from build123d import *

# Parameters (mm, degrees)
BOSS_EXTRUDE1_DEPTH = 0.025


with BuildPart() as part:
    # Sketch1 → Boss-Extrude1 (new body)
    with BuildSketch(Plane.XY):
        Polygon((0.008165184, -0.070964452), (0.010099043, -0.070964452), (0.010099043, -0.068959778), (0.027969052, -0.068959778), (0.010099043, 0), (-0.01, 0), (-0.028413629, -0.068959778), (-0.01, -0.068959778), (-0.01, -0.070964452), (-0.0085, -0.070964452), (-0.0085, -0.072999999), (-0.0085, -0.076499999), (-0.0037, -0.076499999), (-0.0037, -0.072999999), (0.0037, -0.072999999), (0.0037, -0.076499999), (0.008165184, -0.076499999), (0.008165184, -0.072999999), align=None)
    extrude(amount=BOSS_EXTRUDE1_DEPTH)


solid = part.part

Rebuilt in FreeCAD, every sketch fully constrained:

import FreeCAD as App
import Part
import Sketcher
Q = App.Units.Quantity


def add_polygon(sketch, points):
    """Adds a closed chain of lines whose ends are joined by coincident constraints."""
    first, n = sketch.GeometryCount, len(points)
    for a, b in zip(points, points[1:] + points[:1]):
        sketch.addGeometry(Part.LineSegment(App.Vector(*a, 0), App.Vector(*b, 0)), False)
    for i in range(n):
        sketch.addConstraint(Sketcher.Constraint("Coincident", first + i, 2, first + (i + 1) % n, 1))

doc = App.newDocument("Part")
params = doc.addObject("Spreadsheet::Sheet", "Params")
for row, (alias, value) in enumerate([
    ("pad1_length", "0.025 mm"),
], start=1):
    params.set(f"A{row}", alias)
    params.set(f"B{row}", "=" + value)
    params.setAlias(f"B{row}", alias)

body = doc.addObject("PartDesign::Body", "Body")

# Sketch on XY plane
sketch1 = body.newObject("Sketcher::SketchObject", "Sketch")
sketch1.AttachmentSupport = (doc.getObject("XY_Plane"), [""])
sketch1.MapMode = "FlatFace"
add_polygon(sketch1, [(0.0082, -0.071), (0.0101, -0.071), (0.0101, -0.069), (0.028, -0.069), (0.0101, 0), (-0.01, 0), (-0.0284, -0.069), (-0.01, -0.069), (-0.01, -0.071), (-0.0085, -0.071), (-0.0085, -0.0765), (-0.0037, -0.0765), (-0.0037, -0.073), (0.0037, -0.073), (0.0037, -0.0765), (0.0082, -0.0765)])  # lines 0-15
sketch1.addConstraint([
    Sketcher.Constraint("Horizontal", 0),
    Sketcher.Constraint("Vertical", 1),
    Sketcher.Constraint("Horizontal", 2),
    Sketcher.Constraint("Horizontal", 4),
    Sketcher.Constraint("Horizontal", 6),
    Sketcher.Constraint("Vertical", 7),
    Sketcher.Constraint("Horizontal", 8),
    Sketcher.Constraint("Vertical", 9),
    Sketcher.Constraint("Horizontal", 10),
    Sketcher.Constraint("Vertical", 11),
    Sketcher.Constraint("Horizontal", 12),
    Sketcher.Constraint("Vertical", 13),
    Sketcher.Constraint("Horizontal", 14),
    Sketcher.Constraint("Vertical", 15),
    Sketcher.Constraint("Symmetric", 10, 2, 13, 2, -2),
    Sketcher.Constraint("PointOnObject", 3, 2, -1),
    Sketcher.Constraint("Horizontal", 2, 2, 5, 2),
    Sketcher.Constraint("Horizontal", 0, 2, 7, 2),
    Sketcher.Constraint("Vertical", 1, 2, 3, 2),
    Sketcher.Constraint("Vertical", 4, 2, 6, 2),
    Sketcher.Constraint("DistanceX", 4, 2, -1, 1, Q("0.01 mm")),
    Sketcher.Constraint("DistanceX", 4, 2, 4, 1, Q("0.020099 mm")),
    Sketcher.Constraint("DistanceX", 8, 1, 8, 2, Q("0.0015 mm")),
    Sketcher.Constraint("DistanceX", 10, 1, 10, 2, Q("0.0048 mm")),
    Sketcher.Constraint("DistanceY", 11, 1, 11, 2, Q("0.0035 mm")),
    Sketcher.Constraint("DistanceY", 11, 2, -1, 1, Q("0.073 mm")),
    Sketcher.Constraint("DistanceX", 2, 1, 2, 2, Q("0.01787 mm")),
    Sketcher.Constraint("DistanceX", 0, 1, 0, 2, Q("0.001934 mm")),
    Sketcher.Constraint("DistanceX", 6, 1, 6, 2, Q("0.018414 mm")),
    Sketcher.Constraint("DistanceY", 1, 1, 1, 2, Q("0.002005 mm")),
    Sketcher.Constraint("DistanceY", 9, 2, 9, 1, Q("0.005536 mm")),
])
pad1 = body.newObject("PartDesign::Pad", "Pad")
pad1.Profile = sketch1
pad1.setExpression("Length", "Params.pad1_length")

doc.recompute()
